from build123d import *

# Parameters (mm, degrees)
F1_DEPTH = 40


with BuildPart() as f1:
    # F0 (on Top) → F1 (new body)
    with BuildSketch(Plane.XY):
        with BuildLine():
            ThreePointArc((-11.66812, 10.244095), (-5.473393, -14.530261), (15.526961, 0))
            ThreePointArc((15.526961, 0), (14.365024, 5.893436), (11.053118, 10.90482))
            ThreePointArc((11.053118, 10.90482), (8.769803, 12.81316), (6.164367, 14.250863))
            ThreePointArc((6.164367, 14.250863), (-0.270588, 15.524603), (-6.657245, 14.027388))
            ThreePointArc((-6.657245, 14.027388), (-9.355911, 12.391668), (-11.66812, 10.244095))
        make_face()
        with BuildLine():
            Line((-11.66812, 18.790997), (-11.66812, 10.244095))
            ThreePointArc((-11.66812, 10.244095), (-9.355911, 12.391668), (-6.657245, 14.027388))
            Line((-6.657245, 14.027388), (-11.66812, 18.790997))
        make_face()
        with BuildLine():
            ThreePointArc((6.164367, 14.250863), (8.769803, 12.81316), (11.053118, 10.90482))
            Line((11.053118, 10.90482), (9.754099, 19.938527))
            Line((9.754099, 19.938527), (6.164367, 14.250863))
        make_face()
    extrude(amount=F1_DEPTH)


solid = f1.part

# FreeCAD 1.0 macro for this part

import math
import FreeCAD as App
import Part
import Sketcher

V = App.Vector

doc = App.newDocument("Part")
body = doc.addObject("PartDesign::Body", "Body")

# Sketch on XY plane
sketch1 = body.newObject("Sketcher::SketchObject", "Sketch")
sketch1.AttachmentSupport = (doc.getObject("XY_Plane"), [""])
sketch1.MapMode = "FlatFace"
sketch1.addGeometry([
    Part.ArcOfCircle(Part.Circle(V(0, 0, 0), V(0, 0, 1), 15.526961), math.radians(138.718294), math.radians(360.000001)),  # 0
    Part.ArcOfCircle(Part.Circle(V(-0.000006, -0.000002, 0), V(0, 0, 1), 15.526967), math.radians(0.000009), math.radians(44.613037)),  # 1
    Part.LineSegment(V(11.053118, 10.90482, 0), V(9.754099, 19.938527, 0)),  # 2
    Part.LineSegment(V(9.754099, 19.938527, 0), V(6.164367, 14.250863, 0)),  # 3
    Part.ArcOfCircle(Part.Circle(V(0, -0.000002, 0), V(0, 0, 1), 15.526963), math.radians(66.608577), math.radians(115.388501)),  # 4
    Part.LineSegment(V(-6.657245, 14.027388, 0), V(-11.66812, 18.790997, 0)),  # 5
    Part.LineSegment(V(-11.66812, 18.790997, 0), V(-11.66812, 10.244095, 0)),  # 6
], False)
sketch1.addConstraint([
    Sketcher.Constraint("Tangent", 0, 2, 1, 1),
    Sketcher.Constraint("Coincident", 1, 2, 2, 1),
    Sketcher.Constraint("Coincident", 2, 2, 3, 1),
    Sketcher.Constraint("Coincident", 3, 2, 4, 1),
    Sketcher.Constraint("Coincident", 4, 2, 5, 1),
    Sketcher.Constraint("Coincident", 5, 2, 6, 1),
    Sketcher.Constraint("Coincident", 6, 2, 0, 1),
    Sketcher.Constraint("Vertical", 6),
    Sketcher.Constraint("Coincident", 0, 3, -1, 1),
    Sketcher.Constraint("Coincident", 4, 3, -1, 1),
    Sketcher.Constraint("Equal", 0, 4),
    Sketcher.Constraint("PointOnObject", 0, 2, -1),
    Sketcher.Constraint("Radius", 0, 15.526961),
    Sketcher.Constraint("Radius", 1, 15.526967),
    Sketcher.Constraint("DistanceY", 1, 3, 5, 2, 18.790999),
    Sketcher.Constraint("DistanceX", -1, 1, 2, 2, 9.754099),
    Sketcher.Constraint("Distance", 3, 6.725749),
    Sketcher.Constraint("DistanceY", 6, 2, 6, 1, 8.546902),
    Sketcher.Constraint("DistanceX", -1, 1, 1, 2, 11.053118),
    Sketcher.Constraint("DistanceY", 4, 3, 2, 2, 19.938529),
    Sketcher.Constraint("DistanceX", 4, 2, 3, 2, 12.821612),
])
pad1 = body.newObject("PartDesign::Pad", "Pad")
pad1.Profile = sketch1
pad1.Length = 40

doc.recompute()
